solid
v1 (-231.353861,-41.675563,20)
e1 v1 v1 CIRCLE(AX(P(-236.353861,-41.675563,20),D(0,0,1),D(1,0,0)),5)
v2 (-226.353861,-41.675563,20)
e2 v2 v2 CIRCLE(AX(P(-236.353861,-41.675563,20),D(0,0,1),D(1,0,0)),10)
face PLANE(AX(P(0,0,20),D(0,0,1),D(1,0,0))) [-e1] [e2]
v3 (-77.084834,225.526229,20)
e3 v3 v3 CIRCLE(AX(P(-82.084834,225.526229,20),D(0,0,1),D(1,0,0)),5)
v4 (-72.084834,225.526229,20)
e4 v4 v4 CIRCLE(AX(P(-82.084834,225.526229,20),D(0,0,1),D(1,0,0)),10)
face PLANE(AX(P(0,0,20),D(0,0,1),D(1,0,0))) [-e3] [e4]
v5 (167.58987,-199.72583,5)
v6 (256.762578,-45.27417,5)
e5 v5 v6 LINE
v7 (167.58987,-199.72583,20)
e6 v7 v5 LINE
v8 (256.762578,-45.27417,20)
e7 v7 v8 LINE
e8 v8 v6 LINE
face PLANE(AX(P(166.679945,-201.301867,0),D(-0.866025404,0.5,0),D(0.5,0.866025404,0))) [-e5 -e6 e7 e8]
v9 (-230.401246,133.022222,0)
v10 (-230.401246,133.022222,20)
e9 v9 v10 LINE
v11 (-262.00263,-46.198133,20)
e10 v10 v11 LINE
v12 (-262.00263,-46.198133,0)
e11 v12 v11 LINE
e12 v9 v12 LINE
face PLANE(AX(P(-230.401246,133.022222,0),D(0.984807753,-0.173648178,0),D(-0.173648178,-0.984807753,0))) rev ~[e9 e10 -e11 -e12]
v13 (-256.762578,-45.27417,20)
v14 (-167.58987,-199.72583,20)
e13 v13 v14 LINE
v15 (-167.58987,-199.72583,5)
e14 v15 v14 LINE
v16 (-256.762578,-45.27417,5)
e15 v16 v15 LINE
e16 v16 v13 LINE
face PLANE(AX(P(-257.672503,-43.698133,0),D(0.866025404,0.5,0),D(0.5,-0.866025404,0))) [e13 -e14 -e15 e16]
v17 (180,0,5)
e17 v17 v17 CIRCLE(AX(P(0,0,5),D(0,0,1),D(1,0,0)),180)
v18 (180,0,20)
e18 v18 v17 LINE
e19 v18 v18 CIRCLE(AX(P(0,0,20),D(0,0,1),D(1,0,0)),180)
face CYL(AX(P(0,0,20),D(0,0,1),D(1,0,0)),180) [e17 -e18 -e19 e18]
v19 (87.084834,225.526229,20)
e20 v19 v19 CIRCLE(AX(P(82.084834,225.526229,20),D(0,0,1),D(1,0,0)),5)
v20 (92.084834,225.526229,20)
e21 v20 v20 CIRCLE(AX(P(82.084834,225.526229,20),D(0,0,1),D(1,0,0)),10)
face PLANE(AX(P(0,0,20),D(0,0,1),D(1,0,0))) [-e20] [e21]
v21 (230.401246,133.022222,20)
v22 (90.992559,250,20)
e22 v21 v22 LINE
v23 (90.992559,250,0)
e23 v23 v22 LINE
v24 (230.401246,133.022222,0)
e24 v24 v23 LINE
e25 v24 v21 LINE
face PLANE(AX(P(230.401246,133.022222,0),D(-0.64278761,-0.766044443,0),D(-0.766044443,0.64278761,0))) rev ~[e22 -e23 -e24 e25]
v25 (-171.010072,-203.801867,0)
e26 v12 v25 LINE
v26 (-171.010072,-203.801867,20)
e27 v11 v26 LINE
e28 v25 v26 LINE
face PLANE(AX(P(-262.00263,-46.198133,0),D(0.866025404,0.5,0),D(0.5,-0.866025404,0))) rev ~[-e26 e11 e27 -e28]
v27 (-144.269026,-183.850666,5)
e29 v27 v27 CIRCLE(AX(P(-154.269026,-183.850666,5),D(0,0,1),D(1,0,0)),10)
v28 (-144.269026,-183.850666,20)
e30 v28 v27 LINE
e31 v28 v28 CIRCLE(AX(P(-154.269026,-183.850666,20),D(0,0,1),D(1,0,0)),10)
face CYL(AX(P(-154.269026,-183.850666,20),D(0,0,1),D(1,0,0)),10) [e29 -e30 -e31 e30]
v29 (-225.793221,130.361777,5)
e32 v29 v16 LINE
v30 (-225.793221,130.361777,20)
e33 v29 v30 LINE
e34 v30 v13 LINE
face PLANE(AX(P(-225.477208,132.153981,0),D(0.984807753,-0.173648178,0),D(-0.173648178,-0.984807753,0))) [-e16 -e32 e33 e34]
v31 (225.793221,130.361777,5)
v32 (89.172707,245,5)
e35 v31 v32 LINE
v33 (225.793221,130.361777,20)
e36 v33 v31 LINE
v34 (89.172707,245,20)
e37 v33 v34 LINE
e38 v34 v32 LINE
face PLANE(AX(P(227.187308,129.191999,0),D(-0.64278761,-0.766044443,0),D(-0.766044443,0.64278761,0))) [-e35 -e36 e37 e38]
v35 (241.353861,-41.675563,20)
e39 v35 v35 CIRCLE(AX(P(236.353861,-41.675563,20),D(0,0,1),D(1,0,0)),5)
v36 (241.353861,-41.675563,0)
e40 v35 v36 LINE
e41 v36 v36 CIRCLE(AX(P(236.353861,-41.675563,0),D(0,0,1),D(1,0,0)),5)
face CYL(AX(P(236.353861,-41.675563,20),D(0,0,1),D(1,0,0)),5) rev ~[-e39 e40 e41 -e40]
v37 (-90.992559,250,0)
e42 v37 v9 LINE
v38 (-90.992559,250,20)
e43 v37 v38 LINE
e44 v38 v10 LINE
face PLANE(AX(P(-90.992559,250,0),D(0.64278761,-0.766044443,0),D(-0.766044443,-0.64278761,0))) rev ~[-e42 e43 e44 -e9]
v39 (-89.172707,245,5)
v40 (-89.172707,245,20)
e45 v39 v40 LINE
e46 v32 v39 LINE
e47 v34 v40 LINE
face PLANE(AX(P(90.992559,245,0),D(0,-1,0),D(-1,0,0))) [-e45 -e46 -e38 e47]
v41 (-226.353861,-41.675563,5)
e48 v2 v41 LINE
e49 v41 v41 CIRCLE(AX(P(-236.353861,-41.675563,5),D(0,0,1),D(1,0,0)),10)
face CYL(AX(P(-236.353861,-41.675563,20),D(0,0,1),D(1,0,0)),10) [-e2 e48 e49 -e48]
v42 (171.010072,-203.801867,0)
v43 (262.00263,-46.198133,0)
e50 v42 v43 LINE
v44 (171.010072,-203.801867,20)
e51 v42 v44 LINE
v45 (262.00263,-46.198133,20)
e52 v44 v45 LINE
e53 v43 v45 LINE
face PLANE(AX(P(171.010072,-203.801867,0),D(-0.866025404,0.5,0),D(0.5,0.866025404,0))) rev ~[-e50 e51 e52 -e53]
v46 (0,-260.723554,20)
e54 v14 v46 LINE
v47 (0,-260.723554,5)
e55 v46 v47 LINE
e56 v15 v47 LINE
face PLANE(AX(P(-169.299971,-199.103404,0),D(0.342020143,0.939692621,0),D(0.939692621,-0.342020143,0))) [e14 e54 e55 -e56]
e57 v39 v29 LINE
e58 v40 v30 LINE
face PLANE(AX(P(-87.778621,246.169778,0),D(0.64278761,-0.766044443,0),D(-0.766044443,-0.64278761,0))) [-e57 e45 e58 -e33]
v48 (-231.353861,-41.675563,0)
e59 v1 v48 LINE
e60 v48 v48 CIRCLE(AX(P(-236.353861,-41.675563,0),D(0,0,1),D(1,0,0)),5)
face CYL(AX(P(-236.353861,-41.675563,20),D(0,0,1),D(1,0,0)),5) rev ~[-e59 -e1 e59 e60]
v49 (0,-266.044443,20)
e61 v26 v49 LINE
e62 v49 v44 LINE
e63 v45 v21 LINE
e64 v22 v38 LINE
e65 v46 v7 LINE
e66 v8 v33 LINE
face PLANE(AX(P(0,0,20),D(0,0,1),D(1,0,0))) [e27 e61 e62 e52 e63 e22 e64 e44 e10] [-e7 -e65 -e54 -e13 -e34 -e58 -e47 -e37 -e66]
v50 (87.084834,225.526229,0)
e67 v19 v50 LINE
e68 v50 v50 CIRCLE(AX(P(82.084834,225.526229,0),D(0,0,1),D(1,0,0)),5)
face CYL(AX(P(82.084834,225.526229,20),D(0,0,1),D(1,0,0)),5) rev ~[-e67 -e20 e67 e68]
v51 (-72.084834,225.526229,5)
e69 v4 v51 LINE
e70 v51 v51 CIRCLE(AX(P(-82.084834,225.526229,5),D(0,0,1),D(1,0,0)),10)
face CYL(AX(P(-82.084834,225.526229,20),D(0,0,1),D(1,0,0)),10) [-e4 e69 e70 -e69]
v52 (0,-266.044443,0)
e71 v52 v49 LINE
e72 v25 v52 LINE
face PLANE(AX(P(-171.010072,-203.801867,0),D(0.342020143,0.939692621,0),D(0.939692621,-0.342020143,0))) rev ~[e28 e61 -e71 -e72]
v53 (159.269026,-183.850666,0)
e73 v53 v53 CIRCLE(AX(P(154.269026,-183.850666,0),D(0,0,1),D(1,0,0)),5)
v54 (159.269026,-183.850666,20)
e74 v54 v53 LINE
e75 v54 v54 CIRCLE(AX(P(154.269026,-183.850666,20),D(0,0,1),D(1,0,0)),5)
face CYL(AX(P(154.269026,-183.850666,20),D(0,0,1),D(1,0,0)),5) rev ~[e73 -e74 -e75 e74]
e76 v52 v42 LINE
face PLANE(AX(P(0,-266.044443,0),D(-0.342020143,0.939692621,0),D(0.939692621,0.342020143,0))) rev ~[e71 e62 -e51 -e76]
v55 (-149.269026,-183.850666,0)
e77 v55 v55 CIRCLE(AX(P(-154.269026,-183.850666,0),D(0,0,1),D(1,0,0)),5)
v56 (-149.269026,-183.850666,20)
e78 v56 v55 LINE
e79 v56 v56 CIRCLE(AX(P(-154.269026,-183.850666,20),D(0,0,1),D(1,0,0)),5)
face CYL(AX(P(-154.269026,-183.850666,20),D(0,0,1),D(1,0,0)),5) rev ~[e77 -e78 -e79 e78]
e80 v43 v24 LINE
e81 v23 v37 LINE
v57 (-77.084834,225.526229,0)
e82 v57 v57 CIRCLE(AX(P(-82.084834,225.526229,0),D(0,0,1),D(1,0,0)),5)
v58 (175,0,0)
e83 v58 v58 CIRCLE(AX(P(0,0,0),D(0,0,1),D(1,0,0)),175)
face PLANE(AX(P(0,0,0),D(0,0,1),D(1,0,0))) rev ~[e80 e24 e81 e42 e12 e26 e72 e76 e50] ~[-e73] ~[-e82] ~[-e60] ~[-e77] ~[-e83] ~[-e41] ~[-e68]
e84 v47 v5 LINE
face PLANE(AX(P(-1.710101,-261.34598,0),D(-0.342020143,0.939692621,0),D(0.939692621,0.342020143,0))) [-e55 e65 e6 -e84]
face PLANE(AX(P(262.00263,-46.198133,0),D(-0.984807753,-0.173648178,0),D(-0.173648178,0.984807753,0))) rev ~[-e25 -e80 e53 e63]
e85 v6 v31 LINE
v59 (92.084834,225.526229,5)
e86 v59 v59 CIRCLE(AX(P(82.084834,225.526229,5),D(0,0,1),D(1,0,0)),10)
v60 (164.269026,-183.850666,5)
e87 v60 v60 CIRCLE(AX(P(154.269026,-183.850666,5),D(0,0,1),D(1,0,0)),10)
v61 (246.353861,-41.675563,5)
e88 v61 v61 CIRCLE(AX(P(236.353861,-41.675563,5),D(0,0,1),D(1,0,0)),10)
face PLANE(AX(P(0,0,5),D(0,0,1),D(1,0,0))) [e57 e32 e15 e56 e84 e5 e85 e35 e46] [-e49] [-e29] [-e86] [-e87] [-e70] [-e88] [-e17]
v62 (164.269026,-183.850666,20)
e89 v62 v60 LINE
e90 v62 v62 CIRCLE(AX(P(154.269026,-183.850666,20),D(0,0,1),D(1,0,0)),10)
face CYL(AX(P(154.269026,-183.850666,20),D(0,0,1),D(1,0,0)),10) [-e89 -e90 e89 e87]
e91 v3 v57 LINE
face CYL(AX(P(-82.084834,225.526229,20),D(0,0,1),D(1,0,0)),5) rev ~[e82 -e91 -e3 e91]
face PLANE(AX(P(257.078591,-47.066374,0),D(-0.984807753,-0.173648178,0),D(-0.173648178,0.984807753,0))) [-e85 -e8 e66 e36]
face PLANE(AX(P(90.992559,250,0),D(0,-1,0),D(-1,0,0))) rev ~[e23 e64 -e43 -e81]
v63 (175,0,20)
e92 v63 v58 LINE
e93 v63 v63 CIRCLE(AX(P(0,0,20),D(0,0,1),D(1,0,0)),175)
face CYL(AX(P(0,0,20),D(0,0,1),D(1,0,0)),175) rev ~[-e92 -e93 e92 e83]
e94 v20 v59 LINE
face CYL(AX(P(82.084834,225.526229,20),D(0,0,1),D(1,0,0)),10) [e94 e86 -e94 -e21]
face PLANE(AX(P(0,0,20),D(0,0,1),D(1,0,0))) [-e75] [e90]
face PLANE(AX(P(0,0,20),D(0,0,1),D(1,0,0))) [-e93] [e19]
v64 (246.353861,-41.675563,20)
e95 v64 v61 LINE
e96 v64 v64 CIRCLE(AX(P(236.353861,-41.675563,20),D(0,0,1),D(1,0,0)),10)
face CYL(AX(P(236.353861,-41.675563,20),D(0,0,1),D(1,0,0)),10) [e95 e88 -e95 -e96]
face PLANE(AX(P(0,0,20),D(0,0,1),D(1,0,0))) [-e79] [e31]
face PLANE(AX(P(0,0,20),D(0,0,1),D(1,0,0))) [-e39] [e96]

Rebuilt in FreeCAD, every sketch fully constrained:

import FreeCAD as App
import Part
import Sketcher
from FreeCAD import Vector
Q = App.Units.Quantity


def faces_at(feature, points):
    """Names of the faces that lie closest to the given points."""
    faces = feature.Shape.Faces
    near = lambda p: min(range(len(faces)), key=lambda i: faces[i].distToShape(Part.Vertex(*p))[0])
    return sorted({f"Face{near(p) + 1}" for p in points})

doc = App.newDocument("Part")
body = doc.addObject("PartDesign::Body", "Body")

# Sketch on XY plane
sketch1 = body.newObject("Sketcher::SketchObject", "Sketch")
sketch1.AttachmentSupport = (doc.getObject("XY_Plane"), [""])
sketch1.MapMode = "FlatFace"
sketch1.addGeometry([
    Part.LineSegment(Vector(90.992559, 250, 0), Vector(-90.992559, 250, 0)),  # 0
    Part.LineSegment(Vector(-90.992559, 250, 0), Vector(-230.401246, 133.022222, 0)),  # 1
    Part.LineSegment(Vector(-230.401246, 133.022222, 0), Vector(-262.00263, -46.198133, 0)),  # 2
    Part.LineSegment(Vector(-262.00263, -46.198133, 0), Vector(-171.010072, -203.801867, 0)),  # 3
    Part.LineSegment(Vector(-171.010072, -203.801867, 0), Vector(0, -266.044443, 0)),  # 4
    Part.LineSegment(Vector(0, -266.044443, 0), Vector(171.010072, -203.801867, 0)),  # 5
    Part.LineSegment(Vector(171.010072, -203.801867, 0), Vector(262.00263, -46.198133, 0)),  # 6
    Part.LineSegment(Vector(262.00263, -46.198133, 0), Vector(230.401246, 133.022222, 0)),  # 7
    Part.LineSegment(Vector(230.401246, 133.022222, 0), Vector(90.992559, 250, 0)),  # 8
], False)
sketch1.addConstraint([
    Sketcher.Constraint("Coincident", 0, 2, 1, 1),
    Sketcher.Constraint("Coincident", 1, 2, 2, 1),
    Sketcher.Constraint("Coincident", 2, 2, 3, 1),
    Sketcher.Constraint("Coincident", 3, 2, 4, 1),
    Sketcher.Constraint("Coincident", 4, 2, 5, 1),
    Sketcher.Constraint("Coincident", 5, 2, 6, 1),
    Sketcher.Constraint("Coincident", 6, 2, 7, 1),
    Sketcher.Constraint("Coincident", 7, 2, 8, 1),
    Sketcher.Constraint("Coincident", 8, 2, 0, 1),
    Sketcher.Constraint("Horizontal", 0),
    Sketcher.Constraint("Symmetric", 3, 2, 5, 2, -2),
    Sketcher.Constraint("Symmetric", 2, 2, 6, 2, -2),
    Sketcher.Constraint("Symmetric", 1, 2, 7, 2, -2),
    Sketcher.Constraint("PointOnObject", 4, 2, -2),
    Sketcher.Constraint("Equal", 1, 2),
    Sketcher.Constraint("Equal", 2, 3),
    Sketcher.Constraint("Equal", 3, 4),
    Sketcher.Constraint("Equal", 7, 8),
    Sketcher.Constraint("Angle", 1, Q("-140 deg")),
    Sketcher.Constraint("Angle", 2, Q("-100 deg")),
    Sketcher.Constraint("Angle", 3, Q("-60 deg")),
    Sketcher.Constraint("Angle", 4, Q("-20 deg")),
    Sketcher.Constraint("DistanceY", -1, 1, 0, 2, 250.0),
    Sketcher.Constraint("DistanceX", 2, 2, 5, 2, 433.012702),
])
pad1 = body.newObject("PartDesign::Pad", "Pad")
pad1.Profile = sketch1
pad1.Length = 20

# Sketch on XY plane
sketch2 = body.newObject("Sketcher::SketchObject", "Sketch001")
sketch2.AttachmentSupport = (doc.getObject("XY_Plane"), [""])
sketch2.MapMode = "FlatFace"
sketch2.AttachmentOffset = App.Placement(Vector(0, 0, 20), App.Rotation())
sketch2.addGeometry(Part.Circle(Vector(0, 0, 0), Vector(0, 0, 1), 175), False)
sketch2.addConstraint([
    Sketcher.Constraint("Coincident", 0, 3, -1, 1),
    Sketcher.Constraint("Diameter", 0, 350.0),
])
pocket1 = body.newObject("PartDesign::Pocket", "Pocket")
pocket1.Profile = sketch2
pocket1.Type = "ThroughAll"

# Sketch on XY plane
sketch3 = body.newObject("Sketcher::SketchObject", "Sketch002")
sketch3.AttachmentSupport = (doc.getObject("XY_Plane"), [""])
sketch3.MapMode = "FlatFace"
sketch3.AttachmentOffset = App.Placement(Vector(0, 0, 20), App.Rotation())
sketch3.addGeometry([
    Part.Circle(Vector(-154.269026, -183.850666, 0), Vector(0, 0, 1), 5),  # 0
    Part.Circle(Vector(236.353861, -41.675563, 0), Vector(0, 0, 1), 5),  # 1
    Part.Circle(Vector(82.084834, 225.526229, 0), Vector(0, 0, 1), 5),  # 2
    Part.Circle(Vector(-236.353861, -41.675563, 0), Vector(0, 0, 1), 5),  # 3
    Part.Circle(Vector(154.269026, -183.850666, 0), Vector(0, 0, 1), 5),  # 4
    Part.Circle(Vector(-82.084834, 225.526229, 0), Vector(0, 0, 1), 5),  # 5
], False)
sketch3.addConstraint([
    Sketcher.Constraint("Equal", 0, 1),
    Sketcher.Constraint("Equal", 1, 2),
    Sketcher.Constraint("Equal", 2, 3),
    Sketcher.Constraint("Equal", 3, 4),
    Sketcher.Constraint("Equal", 4, 5),
    Sketcher.Constraint("Symmetric", 1, 3, 3, 3, -2),
    Sketcher.Constraint("Symmetric", 0, 3, 4, 3, -2),
    Sketcher.Constraint("Symmetric", 2, 3, 5, 3, -2),
    Sketcher.Constraint("Diameter", 0, 10.0),
    Sketcher.Constraint("DistanceX", -1, 1, 1, 3, 236.353861),
    Sketcher.Constraint("DistanceY", -1, 1, 2, 3, 225.526229),
    Sketcher.Constraint("DistanceY", 1, 3, 2, 3, 267.201792),
    Sketcher.Constraint("DistanceX", 0, 3, 2, 3, 236.353861),
    Sketcher.Constraint("DistanceX", 2, 3, 4, 3, 72.184192),
    Sketcher.Constraint("DistanceY", 0, 3, -1, 1, 183.850666),
])
pocket2 = body.newObject("PartDesign::Pocket", "Pocket001")
pocket2.Profile = sketch3
pocket2.Type = "ThroughAll"
doc.recompute()

thickness = body.newObject("PartDesign::Thickness", "Thickness")
thickness.Base = (pocket2, faces_at(pocket2, [(-209.602, -8.022, 20)]))
thickness.Value = 5
thickness.Reversed = True
thickness.Join = "Arc"

doc.recompute()
